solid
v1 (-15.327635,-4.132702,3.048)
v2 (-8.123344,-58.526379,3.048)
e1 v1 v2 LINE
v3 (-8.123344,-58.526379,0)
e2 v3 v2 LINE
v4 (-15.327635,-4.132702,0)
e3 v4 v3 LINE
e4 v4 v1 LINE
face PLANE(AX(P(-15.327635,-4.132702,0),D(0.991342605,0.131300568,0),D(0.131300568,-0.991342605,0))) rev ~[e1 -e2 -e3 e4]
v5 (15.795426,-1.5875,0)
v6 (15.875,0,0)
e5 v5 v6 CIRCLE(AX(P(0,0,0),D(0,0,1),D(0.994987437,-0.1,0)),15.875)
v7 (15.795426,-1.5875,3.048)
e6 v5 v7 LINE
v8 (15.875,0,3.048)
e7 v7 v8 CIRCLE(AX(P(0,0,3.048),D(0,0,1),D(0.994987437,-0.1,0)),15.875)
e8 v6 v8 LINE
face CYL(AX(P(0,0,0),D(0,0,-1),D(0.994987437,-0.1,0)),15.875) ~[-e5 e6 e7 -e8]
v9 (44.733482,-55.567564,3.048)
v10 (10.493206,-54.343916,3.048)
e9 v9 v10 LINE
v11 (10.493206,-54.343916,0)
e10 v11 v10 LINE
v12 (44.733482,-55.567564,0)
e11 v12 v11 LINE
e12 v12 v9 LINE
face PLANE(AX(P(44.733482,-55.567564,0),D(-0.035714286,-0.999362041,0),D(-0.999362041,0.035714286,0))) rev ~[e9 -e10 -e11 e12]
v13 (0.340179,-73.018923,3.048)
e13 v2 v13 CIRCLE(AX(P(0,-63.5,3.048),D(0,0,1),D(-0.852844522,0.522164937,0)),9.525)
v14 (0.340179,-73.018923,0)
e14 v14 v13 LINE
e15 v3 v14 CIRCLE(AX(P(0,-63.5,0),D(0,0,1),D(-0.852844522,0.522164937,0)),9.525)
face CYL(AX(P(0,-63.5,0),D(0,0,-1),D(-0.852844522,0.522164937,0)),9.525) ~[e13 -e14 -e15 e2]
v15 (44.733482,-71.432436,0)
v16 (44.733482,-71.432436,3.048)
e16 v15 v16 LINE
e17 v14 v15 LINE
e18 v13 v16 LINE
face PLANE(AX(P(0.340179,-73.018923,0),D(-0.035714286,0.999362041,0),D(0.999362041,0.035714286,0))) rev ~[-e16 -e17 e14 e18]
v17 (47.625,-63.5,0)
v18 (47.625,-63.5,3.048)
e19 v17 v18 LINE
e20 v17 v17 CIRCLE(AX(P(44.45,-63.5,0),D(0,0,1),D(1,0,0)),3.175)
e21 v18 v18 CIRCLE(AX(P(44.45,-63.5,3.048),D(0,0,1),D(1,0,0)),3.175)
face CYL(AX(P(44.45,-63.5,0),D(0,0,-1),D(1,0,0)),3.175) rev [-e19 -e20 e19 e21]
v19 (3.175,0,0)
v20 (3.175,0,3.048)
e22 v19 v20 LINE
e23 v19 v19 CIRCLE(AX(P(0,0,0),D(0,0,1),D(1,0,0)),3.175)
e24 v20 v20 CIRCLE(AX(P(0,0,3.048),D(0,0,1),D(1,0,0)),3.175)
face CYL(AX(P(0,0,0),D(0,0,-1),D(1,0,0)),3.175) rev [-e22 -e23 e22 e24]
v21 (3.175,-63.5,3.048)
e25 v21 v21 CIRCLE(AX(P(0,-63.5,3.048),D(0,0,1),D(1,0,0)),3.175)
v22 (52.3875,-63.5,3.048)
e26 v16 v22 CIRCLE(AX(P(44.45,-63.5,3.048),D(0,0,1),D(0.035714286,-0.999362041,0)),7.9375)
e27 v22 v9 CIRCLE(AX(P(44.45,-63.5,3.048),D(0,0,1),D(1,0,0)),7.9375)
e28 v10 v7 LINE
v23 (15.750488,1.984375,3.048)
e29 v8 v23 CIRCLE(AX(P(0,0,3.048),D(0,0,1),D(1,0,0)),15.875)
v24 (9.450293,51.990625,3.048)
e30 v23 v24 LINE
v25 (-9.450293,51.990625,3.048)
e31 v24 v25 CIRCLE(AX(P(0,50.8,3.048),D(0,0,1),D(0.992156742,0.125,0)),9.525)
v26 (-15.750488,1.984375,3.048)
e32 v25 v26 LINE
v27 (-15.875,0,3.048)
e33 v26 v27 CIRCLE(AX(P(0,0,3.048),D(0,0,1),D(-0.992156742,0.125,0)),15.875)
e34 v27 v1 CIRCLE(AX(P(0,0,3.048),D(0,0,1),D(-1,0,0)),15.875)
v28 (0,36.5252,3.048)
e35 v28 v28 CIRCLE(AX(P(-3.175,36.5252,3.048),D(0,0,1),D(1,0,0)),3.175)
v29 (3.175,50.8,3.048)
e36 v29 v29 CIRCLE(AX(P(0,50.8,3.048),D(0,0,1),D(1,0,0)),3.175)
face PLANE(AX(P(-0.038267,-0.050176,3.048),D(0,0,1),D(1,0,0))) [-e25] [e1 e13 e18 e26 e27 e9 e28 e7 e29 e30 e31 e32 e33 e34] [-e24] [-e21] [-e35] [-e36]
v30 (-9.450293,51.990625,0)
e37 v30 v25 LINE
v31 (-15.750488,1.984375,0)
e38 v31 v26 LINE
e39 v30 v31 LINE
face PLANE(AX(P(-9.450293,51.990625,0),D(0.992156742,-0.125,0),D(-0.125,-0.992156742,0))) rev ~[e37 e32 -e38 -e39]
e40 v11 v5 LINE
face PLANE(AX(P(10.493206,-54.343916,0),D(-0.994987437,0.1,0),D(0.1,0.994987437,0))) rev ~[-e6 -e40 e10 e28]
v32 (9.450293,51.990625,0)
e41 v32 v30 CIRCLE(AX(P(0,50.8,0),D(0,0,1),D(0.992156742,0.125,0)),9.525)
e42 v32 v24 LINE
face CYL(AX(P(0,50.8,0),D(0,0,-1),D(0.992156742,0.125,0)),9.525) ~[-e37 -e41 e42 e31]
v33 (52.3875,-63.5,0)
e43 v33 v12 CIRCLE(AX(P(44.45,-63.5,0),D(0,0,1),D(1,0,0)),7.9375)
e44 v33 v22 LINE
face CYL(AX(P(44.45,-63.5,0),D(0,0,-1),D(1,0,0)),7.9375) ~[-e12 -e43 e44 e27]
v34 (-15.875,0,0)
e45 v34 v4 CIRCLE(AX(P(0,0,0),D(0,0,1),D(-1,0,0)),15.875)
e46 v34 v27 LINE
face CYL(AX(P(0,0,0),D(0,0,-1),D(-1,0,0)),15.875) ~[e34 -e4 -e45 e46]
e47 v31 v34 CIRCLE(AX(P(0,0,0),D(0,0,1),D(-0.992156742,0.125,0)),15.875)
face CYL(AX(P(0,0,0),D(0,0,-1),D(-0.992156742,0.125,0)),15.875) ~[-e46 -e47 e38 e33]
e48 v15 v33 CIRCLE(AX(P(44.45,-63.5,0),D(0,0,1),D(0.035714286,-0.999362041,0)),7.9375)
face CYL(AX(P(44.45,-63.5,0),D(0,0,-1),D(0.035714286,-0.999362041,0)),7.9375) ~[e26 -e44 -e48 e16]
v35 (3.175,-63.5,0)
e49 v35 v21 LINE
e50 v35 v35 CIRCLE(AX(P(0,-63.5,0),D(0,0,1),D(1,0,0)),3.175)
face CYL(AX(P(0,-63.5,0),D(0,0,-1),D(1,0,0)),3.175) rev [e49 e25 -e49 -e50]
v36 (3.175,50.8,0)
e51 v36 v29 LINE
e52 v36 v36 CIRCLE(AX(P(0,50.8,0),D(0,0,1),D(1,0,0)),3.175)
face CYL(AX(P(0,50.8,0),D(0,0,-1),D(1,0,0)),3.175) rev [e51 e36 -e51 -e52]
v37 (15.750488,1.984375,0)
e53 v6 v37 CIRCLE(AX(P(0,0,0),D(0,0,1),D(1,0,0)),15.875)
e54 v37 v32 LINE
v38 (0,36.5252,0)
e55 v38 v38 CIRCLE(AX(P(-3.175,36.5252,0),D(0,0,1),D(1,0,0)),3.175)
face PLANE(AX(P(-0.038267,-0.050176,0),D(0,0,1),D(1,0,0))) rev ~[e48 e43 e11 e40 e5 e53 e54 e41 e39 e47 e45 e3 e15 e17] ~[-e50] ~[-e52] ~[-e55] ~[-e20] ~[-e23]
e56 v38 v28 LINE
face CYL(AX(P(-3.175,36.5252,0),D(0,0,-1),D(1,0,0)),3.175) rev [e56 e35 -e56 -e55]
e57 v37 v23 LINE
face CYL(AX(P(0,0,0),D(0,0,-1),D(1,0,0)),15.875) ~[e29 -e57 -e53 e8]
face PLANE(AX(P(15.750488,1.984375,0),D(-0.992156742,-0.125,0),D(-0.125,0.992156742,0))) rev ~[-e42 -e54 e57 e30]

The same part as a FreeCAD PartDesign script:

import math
import FreeCAD as App
import Part
import Sketcher
from FreeCAD import Vector
Q = App.Units.Quantity

doc = App.newDocument("Part")
params = doc.addObject("Spreadsheet::Sheet", "Params")
for row, (alias, value) in enumerate([
    ("sketch1_diameter", "0.25 in"),
    ("sketch1_radius", "0.625 in"),
    ("sketch1_radius2", "0.375 in"),
    ("sketch1_radius3", "0.3125 in"),
    ("pad1_length", "0.12 in"),
], start=1):
    params.set(f"A{row}", alias)
    params.set(f"B{row}", "=" + value)
    params.setAlias(f"B{row}", alias)

body = doc.addObject("PartDesign::Body", "Body")

sketch1 = doc.addObject("Sketcher::SketchObject", "Sketch")
body.addObject(sketch1)
sketch1.AttachmentSupport = (doc.XY_Plane, [""])
sketch1.MapMode = "FlatFace"
sketch1.addGeometry(Part.LineSegment(Vector(44.7, -55.6, 0), Vector(10.5, -54.3, 0)), False)
sketch1.addGeometry(Part.LineSegment(Vector(10.5, -54.3, 0), Vector(15.8, -1.6, 0)), False)
sketch1.addGeometry(Part.ArcOfCircle(Part.Circle(Vector(0, 0, 0), Vector(0, 0, 1), 15.9), math.radians(-5.74), math.radians(0)), False)
sketch1.addGeometry(Part.ArcOfCircle(Part.Circle(Vector(0, 0, 0), Vector(0, 0, 1), 15.9), math.radians(0), math.radians(7.18)), False)
sketch1.addGeometry(Part.LineSegment(Vector(15.8, 2, 0), Vector(9.5, 52, 0)), False)
sketch1.addGeometry(Part.ArcOfCircle(Part.Circle(Vector(0, 50.8, 0), Vector(0, 0, 1), 9.5), math.radians(7), math.radians(173)), False)
sketch1.addGeometry(Part.LineSegment(Vector(-9.5, 52, 0), Vector(-15.8, 2, 0)), False)
sketch1.addGeometry(Part.ArcOfCircle(Part.Circle(Vector(0, 0, 0), Vector(0, 0, 1), 15.9), math.radians(172.82), math.radians(180)), False)
sketch1.addGeometry(Part.ArcOfCircle(Part.Circle(Vector(0, 0, 0), Vector(0, 0, 1), 15.9), math.radians(180), math.radians(195.09)), False)
sketch1.addGeometry(Part.LineSegment(Vector(-15.3, -4.1, 0), Vector(-8.1, -58.5, 0)), False)
sketch1.addGeometry(Part.ArcOfCircle(Part.Circle(Vector(0, -63.5, 0), Vector(0, 0, 1), 9.5), math.radians(149), math.radians(272)), False)
sketch1.addGeometry(Part.LineSegment(Vector(0.3, -73, 0), Vector(44.7, -71.4, 0)), False)
sketch1.addGeometry(Part.ArcOfCircle(Part.Circle(Vector(44.5, -63.5, 0), Vector(0, 0, 1), 7.9), math.radians(-88), math.radians(0)), False)
sketch1.addGeometry(Part.ArcOfCircle(Part.Circle(Vector(44.5, -63.5, 0), Vector(0, 0, 1), 7.9), math.radians(0), math.radians(88)), False)
sketch1.addGeometry(Part.Circle(Vector(0, -63.5, 0), Vector(0, 0, 1), 3.2), False)
sketch1.addGeometry(Part.Circle(Vector(44.5, -63.5, 0), Vector(0, 0, 1), 3.2), False)
sketch1.addGeometry(Part.Circle(Vector(0, 0, 0), Vector(0, 0, 1), 3.2), False)
sketch1.addGeometry(Part.Circle(Vector(-3.2, 36.5, 0), Vector(0, 0, 1), 3.2), False)
sketch1.addGeometry(Part.Circle(Vector(0, 50.8, 0), Vector(0, 0, 1), 3.2), False)
sketch1.addConstraint(Sketcher.Constraint("Coincident", 0, 2, 1, 1))
sketch1.addConstraint(Sketcher.Constraint("Tangent", 1, 2, 2, 1))
sketch1.addConstraint(Sketcher.Constraint("Tangent", 2, 2, 3, 1))
sketch1.addConstraint(Sketcher.Constraint("Tangent", 3, 2, 4, 1))
sketch1.addConstraint(Sketcher.Constraint("Tangent", 4, 2, 5, 1))
sketch1.addConstraint(Sketcher.Constraint("Tangent", 5, 2, 6, 1))
sketch1.addConstraint(Sketcher.Constraint("Tangent", 6, 2, 7, 1))
sketch1.addConstraint(Sketcher.Constraint("Tangent", 7, 2, 8, 1))
sketch1.addConstraint(Sketcher.Constraint("Coincident", 8, 2, 9, 1))
sketch1.addConstraint(Sketcher.Constraint("Coincident", 9, 2, 10, 1))
sketch1.addConstraint(Sketcher.Constraint("Tangent", 10, 2, 11, 1))
sketch1.addConstraint(Sketcher.Constraint("Tangent", 11, 2, 12, 1))
sketch1.addConstraint(Sketcher.Constraint("Tangent", 12, 2, 13, 1))
sketch1.addConstraint(Sketcher.Constraint("Tangent", 13, 2, 0, 1))
sketch1.addConstraint(Sketcher.Constraint("Coincident", 2, 3, -1, 1))
sketch1.addConstraint(Sketcher.Constraint("Coincident", 7, 3, -1, 1))
sketch1.addConstraint(Sketcher.Constraint("Coincident", 16, 3, -1, 1))
sketch1.addConstraint(Sketcher.Constraint("Coincident", 14, 3, 10, 3))
sketch1.addConstraint(Sketcher.Constraint("Coincident", 15, 3, 12, 3))
sketch1.addConstraint(Sketcher.Constraint("Coincident", 18, 3, 5, 3))
sketch1.addConstraint(Sketcher.Constraint("Equal", 2, 3))
sketch1.addConstraint(Sketcher.Constraint("Equal", 3, 7))
sketch1.addConstraint(Sketcher.Constraint("Equal", 7, 8))
sketch1.addConstraint(Sketcher.Constraint("Equal", 5, 10))
sketch1.addConstraint(Sketcher.Constraint("Equal", 12, 13))
sketch1.addConstraint(Sketcher.Constraint("Equal", 14, 15))
sketch1.addConstraint(Sketcher.Constraint("Equal", 15, 16))
sketch1.addConstraint(Sketcher.Constraint("Equal", 16, 17))
sketch1.addConstraint(Sketcher.Constraint("Equal", 17, 18))
sketch1.addConstraint(Sketcher.Constraint("PointOnObject", 5, 3, -2))
sketch1.addConstraint(Sketcher.Constraint("PointOnObject", 10, 3, -2))
sketch1.addConstraint(Sketcher.Constraint("PointOnObject", 2, 2, -1))
sketch1.addConstraint(Sketcher.Constraint("PointOnObject", 7, 2, -1))
sketch1.addConstraint(Sketcher.Constraint("Horizontal", 10, 3, 12, 3))
sketch1.addConstraint(Sketcher.Constraint("Horizontal", 15, 3, 12, 2))
sketch1.addConstraint(Sketcher.Constraint("Vertical", 11, 2, 13, 2))
sketch1.addConstraint(Sketcher.Constraint("Diameter", 14, Q("0.25 in")))
sketch1.addConstraint(Sketcher.Constraint("DistanceY", -1, 1, 5, 3, Q("2 in")))
sketch1.addConstraint(Sketcher.Constraint("Radius", 2, Q("0.625 in")))
sketch1.addConstraint(Sketcher.Constraint("Radius", 5, Q("0.375 in")))
sketch1.addConstraint(Sketcher.Constraint("Radius", 12, Q("0.3125 in")))
sketch1.addConstraint(Sketcher.Constraint("DistanceY", 10, 3, -1, 1, Q("2.5 in")))
sketch1.addConstraint(Sketcher.Constraint("DistanceX", -1, 1, 12, 3, Q("1.75 in")))
sketch1.addConstraint(Sketcher.Constraint("DistanceX", 17, 3, -1, 1, Q("0.125 in")))
sketch1.addConstraint(Sketcher.Constraint("DistanceY", -1, 1, 17, 3, Q("1.438 in")))
sketch1.addConstraint(Sketcher.Constraint("DistanceY", 1, 2, -1, 1, Q("0.0625 in")))
sketch1.addConstraint(Sketcher.Constraint("DistanceY", 9, 2, -1, 1, Q("58.526379 mm")))
sketch1.addConstraint(Sketcher.Constraint("Distance", 9, Q("54.868697 mm")))
sketch1.setExpression("Constraints[36]", "Params.sketch1_diameter")
sketch1.setExpression("Constraints[38]", "Params.sketch1_radius")
sketch1.setExpression("Constraints[39]", "Params.sketch1_radius2")
sketch1.setExpression("Constraints[40]", "Params.sketch1_radius3")
pad1 = doc.addObject("PartDesign::Pad", "Pad")
body.addObject(pad1)
pad1.Profile = sketch1
pad1.setExpression("Length", "Params.pad1_length")

doc.recompute()
